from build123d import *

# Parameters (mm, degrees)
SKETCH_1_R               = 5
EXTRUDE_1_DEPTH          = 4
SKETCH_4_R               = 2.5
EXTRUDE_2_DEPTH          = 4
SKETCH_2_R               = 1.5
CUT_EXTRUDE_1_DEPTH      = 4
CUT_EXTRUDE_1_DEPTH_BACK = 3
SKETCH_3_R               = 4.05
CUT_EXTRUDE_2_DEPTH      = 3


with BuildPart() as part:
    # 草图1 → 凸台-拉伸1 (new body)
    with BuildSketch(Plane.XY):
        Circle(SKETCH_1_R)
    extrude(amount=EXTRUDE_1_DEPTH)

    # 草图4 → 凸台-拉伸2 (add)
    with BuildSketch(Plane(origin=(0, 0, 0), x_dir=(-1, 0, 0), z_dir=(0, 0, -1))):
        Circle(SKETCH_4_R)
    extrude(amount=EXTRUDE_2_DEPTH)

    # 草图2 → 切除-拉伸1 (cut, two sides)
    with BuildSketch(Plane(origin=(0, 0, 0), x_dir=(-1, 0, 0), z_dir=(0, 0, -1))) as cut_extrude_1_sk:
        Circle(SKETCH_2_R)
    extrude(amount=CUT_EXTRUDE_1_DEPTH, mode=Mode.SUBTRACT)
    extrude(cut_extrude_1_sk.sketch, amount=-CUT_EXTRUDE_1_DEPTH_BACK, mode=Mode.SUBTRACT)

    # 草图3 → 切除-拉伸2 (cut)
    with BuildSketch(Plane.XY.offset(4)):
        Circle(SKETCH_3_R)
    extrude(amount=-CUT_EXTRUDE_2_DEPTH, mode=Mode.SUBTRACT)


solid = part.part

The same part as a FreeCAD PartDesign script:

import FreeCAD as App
import Part
import Sketcher
from FreeCAD import Vector

doc = App.newDocument("Part")
body = doc.addObject("PartDesign::Body", "Body")

sketch1 = body.newObject("Sketcher::SketchObject", "Sketch")
sketch1.AttachmentSupport = (doc.getObject("XY_Plane"), [""])
sketch1.MapMode = "FlatFace"
sketch1.addGeometry(Part.Circle(Vector(0, 0, 0), Vector(0, 0, 1), 5), False)
sketch1.addConstraint([
    Sketcher.Constraint("Coincident", 0, 3, -1, 1),
    Sketcher.Constraint("Diameter", 0, 10.0),
])
pad1 = body.newObject("PartDesign::Pad", "Pad")
pad1.Profile = sketch1
pad1.Length = 4

sketch2 = body.newObject("Sketcher::SketchObject", "Sketch001")
sketch2.AttachmentSupport = (doc.getObject("XY_Plane"), [""])
sketch2.MapMode = "FlatFace"
sketch2.addGeometry(Part.Circle(Vector(0, 0, 0), Vector(0, 0, 1), 2.5), False)
sketch2.addConstraint([
    Sketcher.Constraint("Coincident", 0, 3, -1, 1),
    Sketcher.Constraint("Diameter", 0, 5.0),
])
pad2 = body.newObject("PartDesign::Pad", "Pad001")
pad2.Profile = sketch2
pad2.Length = 4
pad2.Reversed = True

sketch3 = body.newObject("Sketcher::SketchObject", "Sketch002")
sketch3.AttachmentSupport = (doc.getObject("XY_Plane"), [""])
sketch3.MapMode = "FlatFace"
sketch3.addGeometry(Part.Circle(Vector(0, 0, 0), Vector(0, 0, 1), 1.5), False)
sketch3.addConstraint([
    Sketcher.Constraint("Coincident", 0, 3, -1, 1),
    Sketcher.Constraint("Diameter", 0, 3.0),
])
pocket1 = body.newObject("PartDesign::Pocket", "Pocket")
pocket1.Profile = sketch3
pocket1.Type = "TwoLengths"
pocket1.Length = 4
pocket1.Length2 = 3

sketch4 = body.newObject("Sketcher::SketchObject", "Sketch003")
sketch4.AttachmentSupport = (doc.getObject("XY_Plane"), [""])
sketch4.MapMode = "FlatFace"
sketch4.AttachmentOffset = App.Placement(Vector(0, 0, 4), App.Rotation())
sketch4.addGeometry(Part.Circle(Vector(0, 0, 0), Vector(0, 0, 1), 4), False)
sketch4.addConstraint([
    Sketcher.Constraint("Coincident", 0, 3, -1, 1),
    Sketcher.Constraint("Diameter", 0, 8.1),
])
pocket2 = body.newObject("PartDesign::Pocket", "Pocket001")
pocket2.Profile = sketch4
pocket2.Length = 3

doc.recompute()
